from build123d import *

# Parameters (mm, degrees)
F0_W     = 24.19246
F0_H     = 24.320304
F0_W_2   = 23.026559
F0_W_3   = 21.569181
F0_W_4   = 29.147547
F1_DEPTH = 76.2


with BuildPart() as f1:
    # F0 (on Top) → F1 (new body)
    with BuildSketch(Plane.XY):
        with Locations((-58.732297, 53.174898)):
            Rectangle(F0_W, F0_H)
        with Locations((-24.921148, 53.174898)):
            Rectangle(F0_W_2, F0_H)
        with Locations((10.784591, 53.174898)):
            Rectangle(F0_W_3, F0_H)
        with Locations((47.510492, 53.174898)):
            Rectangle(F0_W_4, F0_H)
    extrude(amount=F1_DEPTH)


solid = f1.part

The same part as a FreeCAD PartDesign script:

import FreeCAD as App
import Part
import Sketcher

V = App.Vector


def add_polygon(sketch, points):
    """Adds a closed chain of lines whose ends are joined by coincident constraints."""
    first, n = sketch.GeometryCount, len(points)
    for a, b in zip(points, points[1:] + points[:1]):
        sketch.addGeometry(Part.LineSegment(App.Vector(*a, 0), App.Vector(*b, 0)), False)
    for i in range(n):
        sketch.addConstraint(Sketcher.Constraint("Coincident", first + i, 2, first + (i + 1) % n, 1))

doc = App.newDocument("Part")
params = doc.addObject("Spreadsheet::Sheet", "Params")
for row, (alias, value) in enumerate([
    ("pad1_length", "3 in"),
], start=1):
    params.set(f"A{row}", alias)
    params.set(f"B{row}", "=" + value)
    params.setAlias(f"B{row}", alias)

body = doc.addObject("PartDesign::Body", "Body")
body.AllowCompound = True

sketch1 = body.newObject("Sketcher::SketchObject", "Sketch")
sketch1.AttachmentSupport = (doc.getObject("XY_Plane"), [""])
sketch1.MapMode = "FlatFace"
add_polygon(sketch1, [(-71, 65), (-71, 41), (-47, 41), (-47, 65)])
add_polygon(sketch1, [(-36, 65), (-36, 41), (-13, 41), (-13, 65)])
add_polygon(sketch1, [(0, 65), (0, 41), (22, 41), (22, 65)])
add_polygon(sketch1, [(33, 65), (33, 41), (62, 41), (62, 65)])
sketch1.addConstraint([
    Sketcher.Constraint("Vertical", 0),
    Sketcher.Constraint("Horizontal", 1),
    Sketcher.Constraint("Vertical", 2),
    Sketcher.Constraint("Horizontal", 3),
    Sketcher.Constraint("Vertical", 4),
    Sketcher.Constraint("Horizontal", 5),
    Sketcher.Constraint("Vertical", 6),
    Sketcher.Constraint("Horizontal", 7),
    Sketcher.Constraint("Vertical", 8),
    Sketcher.Constraint("Horizontal", 9),
    Sketcher.Constraint("Vertical", 10),
    Sketcher.Constraint("Horizontal", 11),
    Sketcher.Constraint("Vertical", 12),
    Sketcher.Constraint("Horizontal", 13),
    Sketcher.Constraint("Vertical", 14),
    Sketcher.Constraint("Horizontal", 15),
    Sketcher.Constraint("PointOnObject", 8, 2, -2),
    Sketcher.Constraint("Horizontal", 1, 2, 4, 2),
    Sketcher.Constraint("Horizontal", 3, 2, 6, 2),
    Sketcher.Constraint("Horizontal", 5, 2, 8, 2),
    Sketcher.Constraint("Horizontal", 7, 2, 10, 2),
    Sketcher.Constraint("Horizontal", 9, 2, 12, 2),
    Sketcher.Constraint("Horizontal", 11, 2, 14, 2),
    Sketcher.Constraint("DistanceX", 1, 1, 1, 2, 24.19246),
    Sketcher.Constraint("DistanceX", 5, 1, 5, 2, 23.026559),
    Sketcher.Constraint("DistanceX", 9, 1, 9, 2, 21.569181),
    Sketcher.Constraint("DistanceX", 0, 2, 4, 2, 34.394099),
    Sketcher.Constraint("DistanceX", 13, 1, 13, 2, 29.147547),
    Sketcher.Constraint("DistanceY", 0, 2, 0, 1, 24.320304),
    Sketcher.Constraint("DistanceY", -1, 1, 2, 2, 65.33505),
    Sketcher.Constraint("DistanceX", 5, 2, -1, 1, 13.407868),
    Sketcher.Constraint("DistanceX", -1, 1, 12, 2, 32.936718),
])
pad1 = body.newObject("PartDesign::Pad", "Pad")
pad1.Profile = sketch1
pad1.setExpression("Length", "Params.pad1_length")

doc.recompute()
